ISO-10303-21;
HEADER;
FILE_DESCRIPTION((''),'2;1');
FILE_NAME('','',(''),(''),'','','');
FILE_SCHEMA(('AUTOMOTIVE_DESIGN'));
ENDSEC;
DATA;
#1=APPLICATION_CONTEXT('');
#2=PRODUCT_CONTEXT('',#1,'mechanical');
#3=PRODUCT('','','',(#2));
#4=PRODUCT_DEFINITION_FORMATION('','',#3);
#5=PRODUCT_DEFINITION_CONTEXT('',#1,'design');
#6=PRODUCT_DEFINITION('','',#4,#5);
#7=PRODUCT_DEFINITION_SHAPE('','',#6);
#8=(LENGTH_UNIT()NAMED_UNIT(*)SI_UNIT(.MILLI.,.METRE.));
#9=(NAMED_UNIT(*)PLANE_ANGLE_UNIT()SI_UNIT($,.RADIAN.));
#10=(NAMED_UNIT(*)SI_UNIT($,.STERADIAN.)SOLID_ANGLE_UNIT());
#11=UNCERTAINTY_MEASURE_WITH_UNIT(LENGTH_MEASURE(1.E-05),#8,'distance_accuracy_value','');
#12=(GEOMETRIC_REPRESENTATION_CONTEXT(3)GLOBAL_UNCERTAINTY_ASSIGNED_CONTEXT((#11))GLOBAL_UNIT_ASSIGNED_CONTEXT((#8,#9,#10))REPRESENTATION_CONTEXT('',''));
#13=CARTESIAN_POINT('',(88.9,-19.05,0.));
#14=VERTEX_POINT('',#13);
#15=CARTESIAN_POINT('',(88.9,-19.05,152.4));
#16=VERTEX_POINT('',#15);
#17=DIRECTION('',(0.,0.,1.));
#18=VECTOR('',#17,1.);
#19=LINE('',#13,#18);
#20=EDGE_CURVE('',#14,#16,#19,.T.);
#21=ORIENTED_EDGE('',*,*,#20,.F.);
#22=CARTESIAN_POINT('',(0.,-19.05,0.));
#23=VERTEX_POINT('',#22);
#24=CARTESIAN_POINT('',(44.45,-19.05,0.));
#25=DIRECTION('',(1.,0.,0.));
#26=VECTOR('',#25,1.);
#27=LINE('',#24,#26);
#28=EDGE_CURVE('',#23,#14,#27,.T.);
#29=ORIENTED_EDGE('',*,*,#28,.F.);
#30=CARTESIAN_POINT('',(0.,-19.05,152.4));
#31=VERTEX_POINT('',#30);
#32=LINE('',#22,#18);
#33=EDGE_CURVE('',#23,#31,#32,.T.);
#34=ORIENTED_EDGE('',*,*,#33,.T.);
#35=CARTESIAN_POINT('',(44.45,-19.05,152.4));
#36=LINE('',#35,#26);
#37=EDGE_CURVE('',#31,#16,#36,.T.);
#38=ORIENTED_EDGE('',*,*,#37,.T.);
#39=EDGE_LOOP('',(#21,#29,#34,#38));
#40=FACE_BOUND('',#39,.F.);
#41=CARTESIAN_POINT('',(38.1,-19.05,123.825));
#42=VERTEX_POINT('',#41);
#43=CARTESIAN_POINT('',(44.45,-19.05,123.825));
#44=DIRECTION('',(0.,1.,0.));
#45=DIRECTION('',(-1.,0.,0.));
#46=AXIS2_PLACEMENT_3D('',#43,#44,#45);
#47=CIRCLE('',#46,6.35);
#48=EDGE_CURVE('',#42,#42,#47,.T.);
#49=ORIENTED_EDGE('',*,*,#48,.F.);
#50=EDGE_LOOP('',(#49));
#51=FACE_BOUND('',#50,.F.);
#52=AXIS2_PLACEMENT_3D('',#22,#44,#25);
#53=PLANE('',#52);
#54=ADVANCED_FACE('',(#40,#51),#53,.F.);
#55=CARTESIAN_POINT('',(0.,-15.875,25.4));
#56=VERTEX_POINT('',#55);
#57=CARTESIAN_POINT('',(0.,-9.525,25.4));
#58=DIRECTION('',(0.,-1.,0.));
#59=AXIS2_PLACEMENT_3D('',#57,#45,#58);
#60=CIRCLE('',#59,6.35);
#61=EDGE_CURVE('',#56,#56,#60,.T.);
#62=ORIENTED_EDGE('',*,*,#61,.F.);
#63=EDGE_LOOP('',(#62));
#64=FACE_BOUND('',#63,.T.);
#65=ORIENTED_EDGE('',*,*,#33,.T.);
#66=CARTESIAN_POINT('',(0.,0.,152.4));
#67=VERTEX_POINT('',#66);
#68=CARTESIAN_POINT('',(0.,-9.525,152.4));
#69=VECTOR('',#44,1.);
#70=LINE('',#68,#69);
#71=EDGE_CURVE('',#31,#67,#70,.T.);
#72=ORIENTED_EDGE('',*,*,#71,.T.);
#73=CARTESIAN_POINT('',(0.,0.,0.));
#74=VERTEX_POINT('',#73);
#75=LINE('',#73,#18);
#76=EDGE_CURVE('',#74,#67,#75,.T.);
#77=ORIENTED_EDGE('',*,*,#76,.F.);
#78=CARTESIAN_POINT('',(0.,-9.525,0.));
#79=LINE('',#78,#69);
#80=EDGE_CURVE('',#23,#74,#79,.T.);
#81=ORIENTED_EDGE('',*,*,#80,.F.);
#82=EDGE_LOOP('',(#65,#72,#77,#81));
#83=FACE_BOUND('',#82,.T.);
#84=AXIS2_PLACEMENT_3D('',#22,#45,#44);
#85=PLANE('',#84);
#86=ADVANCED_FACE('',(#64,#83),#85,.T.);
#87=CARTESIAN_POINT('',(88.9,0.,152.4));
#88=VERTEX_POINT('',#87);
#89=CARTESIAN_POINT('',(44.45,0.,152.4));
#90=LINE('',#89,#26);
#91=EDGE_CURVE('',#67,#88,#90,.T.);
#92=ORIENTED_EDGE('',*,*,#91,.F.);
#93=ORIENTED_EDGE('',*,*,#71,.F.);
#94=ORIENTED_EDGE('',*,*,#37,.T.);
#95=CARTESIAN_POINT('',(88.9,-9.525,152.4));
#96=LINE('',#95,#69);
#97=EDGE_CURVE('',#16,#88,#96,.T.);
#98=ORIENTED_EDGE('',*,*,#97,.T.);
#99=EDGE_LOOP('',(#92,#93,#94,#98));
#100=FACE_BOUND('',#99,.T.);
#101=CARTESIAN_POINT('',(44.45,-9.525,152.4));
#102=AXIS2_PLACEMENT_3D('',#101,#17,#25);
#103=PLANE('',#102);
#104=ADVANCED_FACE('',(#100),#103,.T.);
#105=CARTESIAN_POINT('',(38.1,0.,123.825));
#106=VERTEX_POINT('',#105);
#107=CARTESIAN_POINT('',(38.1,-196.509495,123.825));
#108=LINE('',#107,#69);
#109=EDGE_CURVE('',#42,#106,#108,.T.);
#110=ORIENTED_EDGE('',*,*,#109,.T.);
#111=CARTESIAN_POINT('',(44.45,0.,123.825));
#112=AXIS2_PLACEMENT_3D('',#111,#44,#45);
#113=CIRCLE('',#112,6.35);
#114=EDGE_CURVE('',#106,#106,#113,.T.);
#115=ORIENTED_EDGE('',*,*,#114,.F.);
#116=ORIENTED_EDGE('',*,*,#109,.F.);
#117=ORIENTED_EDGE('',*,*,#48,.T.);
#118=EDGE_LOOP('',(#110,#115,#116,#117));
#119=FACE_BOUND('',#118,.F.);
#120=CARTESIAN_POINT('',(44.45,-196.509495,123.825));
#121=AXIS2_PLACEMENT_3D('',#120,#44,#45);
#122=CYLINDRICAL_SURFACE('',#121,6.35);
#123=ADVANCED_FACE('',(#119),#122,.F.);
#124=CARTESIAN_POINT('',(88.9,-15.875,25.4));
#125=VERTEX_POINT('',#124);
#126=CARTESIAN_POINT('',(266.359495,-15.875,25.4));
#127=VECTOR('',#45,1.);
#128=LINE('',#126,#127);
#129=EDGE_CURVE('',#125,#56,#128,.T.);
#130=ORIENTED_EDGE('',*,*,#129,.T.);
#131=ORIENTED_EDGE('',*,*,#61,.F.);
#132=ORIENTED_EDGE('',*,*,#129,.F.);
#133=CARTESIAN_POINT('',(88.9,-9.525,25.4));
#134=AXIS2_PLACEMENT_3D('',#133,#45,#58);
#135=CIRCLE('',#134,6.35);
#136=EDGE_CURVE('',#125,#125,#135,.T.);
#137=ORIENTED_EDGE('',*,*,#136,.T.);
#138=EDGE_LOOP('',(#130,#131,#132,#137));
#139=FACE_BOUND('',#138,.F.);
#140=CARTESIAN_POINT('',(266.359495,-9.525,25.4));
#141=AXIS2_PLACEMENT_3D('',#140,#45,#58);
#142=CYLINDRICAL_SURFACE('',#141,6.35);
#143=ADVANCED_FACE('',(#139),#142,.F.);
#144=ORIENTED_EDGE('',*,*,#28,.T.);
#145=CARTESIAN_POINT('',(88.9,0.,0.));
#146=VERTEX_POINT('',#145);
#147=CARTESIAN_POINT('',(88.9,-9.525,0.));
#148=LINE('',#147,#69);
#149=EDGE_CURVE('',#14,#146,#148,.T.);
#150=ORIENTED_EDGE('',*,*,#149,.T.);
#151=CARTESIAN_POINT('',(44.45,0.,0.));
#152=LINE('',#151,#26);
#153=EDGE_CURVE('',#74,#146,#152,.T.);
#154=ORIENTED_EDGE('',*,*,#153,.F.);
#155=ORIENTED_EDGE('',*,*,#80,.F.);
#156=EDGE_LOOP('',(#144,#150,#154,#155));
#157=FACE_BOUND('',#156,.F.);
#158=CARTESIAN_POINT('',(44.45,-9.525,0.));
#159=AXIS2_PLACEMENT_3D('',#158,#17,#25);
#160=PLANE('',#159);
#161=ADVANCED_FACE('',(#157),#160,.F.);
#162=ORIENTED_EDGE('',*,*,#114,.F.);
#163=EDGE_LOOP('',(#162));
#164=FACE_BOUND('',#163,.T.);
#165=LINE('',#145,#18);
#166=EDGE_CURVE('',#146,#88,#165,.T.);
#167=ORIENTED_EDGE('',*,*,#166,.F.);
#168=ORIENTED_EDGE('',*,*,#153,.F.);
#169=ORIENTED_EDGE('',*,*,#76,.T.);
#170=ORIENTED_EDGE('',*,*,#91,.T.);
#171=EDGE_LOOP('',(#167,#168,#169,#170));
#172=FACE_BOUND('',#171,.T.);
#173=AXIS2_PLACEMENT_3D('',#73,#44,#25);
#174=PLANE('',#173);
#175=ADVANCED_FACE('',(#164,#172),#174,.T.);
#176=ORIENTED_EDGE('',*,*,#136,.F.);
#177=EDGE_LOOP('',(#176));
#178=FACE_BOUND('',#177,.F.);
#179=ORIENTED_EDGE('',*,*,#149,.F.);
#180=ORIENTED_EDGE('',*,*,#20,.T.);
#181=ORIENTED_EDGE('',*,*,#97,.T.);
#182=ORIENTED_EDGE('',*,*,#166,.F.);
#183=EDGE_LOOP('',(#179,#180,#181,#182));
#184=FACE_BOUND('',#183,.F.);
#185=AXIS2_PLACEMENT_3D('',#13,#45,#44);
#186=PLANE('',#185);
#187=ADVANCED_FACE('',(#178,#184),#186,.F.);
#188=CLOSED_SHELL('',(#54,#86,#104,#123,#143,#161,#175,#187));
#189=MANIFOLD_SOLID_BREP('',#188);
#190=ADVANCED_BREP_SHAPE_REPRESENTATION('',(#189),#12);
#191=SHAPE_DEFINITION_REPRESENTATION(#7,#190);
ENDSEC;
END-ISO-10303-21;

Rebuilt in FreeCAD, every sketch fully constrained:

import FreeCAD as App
import Part
import Sketcher

V = App.Vector
Q = App.Units.Quantity

doc = App.newDocument("Part")
body = doc.addObject("PartDesign::Body", "Body")

# Sketch on XY plane
sketch1 = body.newObject("Sketcher::SketchObject", "Sketch")
sketch1.AttachmentSupport = (doc.getObject("XY_Plane"), [""])
sketch1.MapMode = "FlatFace"
sketch1.addGeometry(Part.LineSegment(V(0, 0, 0), V(0, -19.05, 0)), False)
sketch1.addGeometry(Part.LineSegment(V(0, -19.05, 0), V(88.9, -19.05, 0)), False)
sketch1.addGeometry(Part.LineSegment(V(88.9, -19.05, 0), V(88.9, 0, 0)), False)
sketch1.addGeometry(Part.LineSegment(V(88.9, 0, 0), V(0, 0, 0)), False)
sketch1.addConstraint(Sketcher.Constraint("Coincident", 0, 2, 1, 1))
sketch1.addConstraint(Sketcher.Constraint("Coincident", 1, 2, 2, 1))
sketch1.addConstraint(Sketcher.Constraint("Coincident", 2, 2, 3, 1))
sketch1.addConstraint(Sketcher.Constraint("Coincident", 3, 2, 0, 1))
sketch1.addConstraint(Sketcher.Constraint("Vertical", 0))
sketch1.addConstraint(Sketcher.Constraint("Horizontal", 1))
sketch1.addConstraint(Sketcher.Constraint("Vertical", 2))
sketch1.addConstraint(Sketcher.Constraint("Horizontal", 3))
sketch1.addConstraint(Sketcher.Constraint("Coincident", 3, 2, -1, 1))
sketch1.addConstraint(Sketcher.Constraint("DistanceX", 1, 1, 1, 2, Q("3.5 in")))
sketch1.addConstraint(Sketcher.Constraint("DistanceY", 0, 2, 0, 1, Q("0.75 in")))
pad1 = body.newObject("PartDesign::Pad", "Pad")
pad1.Profile = sketch1
pad1.Length = Q("6 in")

# Sketch on XZ plane
sketch2 = body.newObject("Sketcher::SketchObject", "Sketch001")
sketch2.AttachmentSupport = (doc.getObject("XZ_Plane"), [""])
sketch2.MapMode = "FlatFace"
sketch2.AttachmentOffset = App.Placement(V(0, 0, 0.75 * 25.4), App.Rotation())
sketch2.addGeometry(Part.Circle(V(44.45, 123.825, 0), V(0, 0, 1), 6.35), False)
sketch2.addConstraint(Sketcher.Constraint("Diameter", 0, Q("0.5 in")))
sketch2.addConstraint(Sketcher.Constraint("DistanceX", -1, 1, 0, 3, Q("1.75 in")))
sketch2.addConstraint(Sketcher.Constraint("DistanceY", -1, 1, 0, 3, Q("4.875 in")))
doc.recompute()
hole = body.newObject("PartDesign::Hole", "Hole")
hole.Profile = sketch2
hole.ThreadType = "None"
hole.Diameter = Q("0.5 in")
hole.DepthType = "ThroughAll"

# Sketch on YZ plane
sketch3 = body.newObject("Sketcher::SketchObject", "Sketch002")
sketch3.AttachmentSupport = (doc.getObject("YZ_Plane"), [""])
sketch3.MapMode = "FlatFace"
sketch3.AttachmentOffset = App.Placement(V(0, 0, 3.5 * 25.4), App.Rotation())
sketch3.addGeometry(Part.Circle(V(-9.525, 25.4, 0), V(0, 0, 1), 6.35), False)
sketch3.addConstraint(Sketcher.Constraint("Diameter", 0, Q("0.5 in")))
sketch3.addConstraint(Sketcher.Constraint("DistanceY", -1, 1, 0, 3, Q("1 in")))
sketch3.addConstraint(Sketcher.Constraint("DistanceX", 0, 3, -1, 1, Q("0.375 in")))
doc.recompute()
hole2 = body.newObject("PartDesign::Hole", "Hole001")
hole2.Profile = sketch3
hole2.ThreadType = "None"
hole2.Diameter = Q("0.5 in")
hole2.DepthType = "ThroughAll"

doc.recompute()
